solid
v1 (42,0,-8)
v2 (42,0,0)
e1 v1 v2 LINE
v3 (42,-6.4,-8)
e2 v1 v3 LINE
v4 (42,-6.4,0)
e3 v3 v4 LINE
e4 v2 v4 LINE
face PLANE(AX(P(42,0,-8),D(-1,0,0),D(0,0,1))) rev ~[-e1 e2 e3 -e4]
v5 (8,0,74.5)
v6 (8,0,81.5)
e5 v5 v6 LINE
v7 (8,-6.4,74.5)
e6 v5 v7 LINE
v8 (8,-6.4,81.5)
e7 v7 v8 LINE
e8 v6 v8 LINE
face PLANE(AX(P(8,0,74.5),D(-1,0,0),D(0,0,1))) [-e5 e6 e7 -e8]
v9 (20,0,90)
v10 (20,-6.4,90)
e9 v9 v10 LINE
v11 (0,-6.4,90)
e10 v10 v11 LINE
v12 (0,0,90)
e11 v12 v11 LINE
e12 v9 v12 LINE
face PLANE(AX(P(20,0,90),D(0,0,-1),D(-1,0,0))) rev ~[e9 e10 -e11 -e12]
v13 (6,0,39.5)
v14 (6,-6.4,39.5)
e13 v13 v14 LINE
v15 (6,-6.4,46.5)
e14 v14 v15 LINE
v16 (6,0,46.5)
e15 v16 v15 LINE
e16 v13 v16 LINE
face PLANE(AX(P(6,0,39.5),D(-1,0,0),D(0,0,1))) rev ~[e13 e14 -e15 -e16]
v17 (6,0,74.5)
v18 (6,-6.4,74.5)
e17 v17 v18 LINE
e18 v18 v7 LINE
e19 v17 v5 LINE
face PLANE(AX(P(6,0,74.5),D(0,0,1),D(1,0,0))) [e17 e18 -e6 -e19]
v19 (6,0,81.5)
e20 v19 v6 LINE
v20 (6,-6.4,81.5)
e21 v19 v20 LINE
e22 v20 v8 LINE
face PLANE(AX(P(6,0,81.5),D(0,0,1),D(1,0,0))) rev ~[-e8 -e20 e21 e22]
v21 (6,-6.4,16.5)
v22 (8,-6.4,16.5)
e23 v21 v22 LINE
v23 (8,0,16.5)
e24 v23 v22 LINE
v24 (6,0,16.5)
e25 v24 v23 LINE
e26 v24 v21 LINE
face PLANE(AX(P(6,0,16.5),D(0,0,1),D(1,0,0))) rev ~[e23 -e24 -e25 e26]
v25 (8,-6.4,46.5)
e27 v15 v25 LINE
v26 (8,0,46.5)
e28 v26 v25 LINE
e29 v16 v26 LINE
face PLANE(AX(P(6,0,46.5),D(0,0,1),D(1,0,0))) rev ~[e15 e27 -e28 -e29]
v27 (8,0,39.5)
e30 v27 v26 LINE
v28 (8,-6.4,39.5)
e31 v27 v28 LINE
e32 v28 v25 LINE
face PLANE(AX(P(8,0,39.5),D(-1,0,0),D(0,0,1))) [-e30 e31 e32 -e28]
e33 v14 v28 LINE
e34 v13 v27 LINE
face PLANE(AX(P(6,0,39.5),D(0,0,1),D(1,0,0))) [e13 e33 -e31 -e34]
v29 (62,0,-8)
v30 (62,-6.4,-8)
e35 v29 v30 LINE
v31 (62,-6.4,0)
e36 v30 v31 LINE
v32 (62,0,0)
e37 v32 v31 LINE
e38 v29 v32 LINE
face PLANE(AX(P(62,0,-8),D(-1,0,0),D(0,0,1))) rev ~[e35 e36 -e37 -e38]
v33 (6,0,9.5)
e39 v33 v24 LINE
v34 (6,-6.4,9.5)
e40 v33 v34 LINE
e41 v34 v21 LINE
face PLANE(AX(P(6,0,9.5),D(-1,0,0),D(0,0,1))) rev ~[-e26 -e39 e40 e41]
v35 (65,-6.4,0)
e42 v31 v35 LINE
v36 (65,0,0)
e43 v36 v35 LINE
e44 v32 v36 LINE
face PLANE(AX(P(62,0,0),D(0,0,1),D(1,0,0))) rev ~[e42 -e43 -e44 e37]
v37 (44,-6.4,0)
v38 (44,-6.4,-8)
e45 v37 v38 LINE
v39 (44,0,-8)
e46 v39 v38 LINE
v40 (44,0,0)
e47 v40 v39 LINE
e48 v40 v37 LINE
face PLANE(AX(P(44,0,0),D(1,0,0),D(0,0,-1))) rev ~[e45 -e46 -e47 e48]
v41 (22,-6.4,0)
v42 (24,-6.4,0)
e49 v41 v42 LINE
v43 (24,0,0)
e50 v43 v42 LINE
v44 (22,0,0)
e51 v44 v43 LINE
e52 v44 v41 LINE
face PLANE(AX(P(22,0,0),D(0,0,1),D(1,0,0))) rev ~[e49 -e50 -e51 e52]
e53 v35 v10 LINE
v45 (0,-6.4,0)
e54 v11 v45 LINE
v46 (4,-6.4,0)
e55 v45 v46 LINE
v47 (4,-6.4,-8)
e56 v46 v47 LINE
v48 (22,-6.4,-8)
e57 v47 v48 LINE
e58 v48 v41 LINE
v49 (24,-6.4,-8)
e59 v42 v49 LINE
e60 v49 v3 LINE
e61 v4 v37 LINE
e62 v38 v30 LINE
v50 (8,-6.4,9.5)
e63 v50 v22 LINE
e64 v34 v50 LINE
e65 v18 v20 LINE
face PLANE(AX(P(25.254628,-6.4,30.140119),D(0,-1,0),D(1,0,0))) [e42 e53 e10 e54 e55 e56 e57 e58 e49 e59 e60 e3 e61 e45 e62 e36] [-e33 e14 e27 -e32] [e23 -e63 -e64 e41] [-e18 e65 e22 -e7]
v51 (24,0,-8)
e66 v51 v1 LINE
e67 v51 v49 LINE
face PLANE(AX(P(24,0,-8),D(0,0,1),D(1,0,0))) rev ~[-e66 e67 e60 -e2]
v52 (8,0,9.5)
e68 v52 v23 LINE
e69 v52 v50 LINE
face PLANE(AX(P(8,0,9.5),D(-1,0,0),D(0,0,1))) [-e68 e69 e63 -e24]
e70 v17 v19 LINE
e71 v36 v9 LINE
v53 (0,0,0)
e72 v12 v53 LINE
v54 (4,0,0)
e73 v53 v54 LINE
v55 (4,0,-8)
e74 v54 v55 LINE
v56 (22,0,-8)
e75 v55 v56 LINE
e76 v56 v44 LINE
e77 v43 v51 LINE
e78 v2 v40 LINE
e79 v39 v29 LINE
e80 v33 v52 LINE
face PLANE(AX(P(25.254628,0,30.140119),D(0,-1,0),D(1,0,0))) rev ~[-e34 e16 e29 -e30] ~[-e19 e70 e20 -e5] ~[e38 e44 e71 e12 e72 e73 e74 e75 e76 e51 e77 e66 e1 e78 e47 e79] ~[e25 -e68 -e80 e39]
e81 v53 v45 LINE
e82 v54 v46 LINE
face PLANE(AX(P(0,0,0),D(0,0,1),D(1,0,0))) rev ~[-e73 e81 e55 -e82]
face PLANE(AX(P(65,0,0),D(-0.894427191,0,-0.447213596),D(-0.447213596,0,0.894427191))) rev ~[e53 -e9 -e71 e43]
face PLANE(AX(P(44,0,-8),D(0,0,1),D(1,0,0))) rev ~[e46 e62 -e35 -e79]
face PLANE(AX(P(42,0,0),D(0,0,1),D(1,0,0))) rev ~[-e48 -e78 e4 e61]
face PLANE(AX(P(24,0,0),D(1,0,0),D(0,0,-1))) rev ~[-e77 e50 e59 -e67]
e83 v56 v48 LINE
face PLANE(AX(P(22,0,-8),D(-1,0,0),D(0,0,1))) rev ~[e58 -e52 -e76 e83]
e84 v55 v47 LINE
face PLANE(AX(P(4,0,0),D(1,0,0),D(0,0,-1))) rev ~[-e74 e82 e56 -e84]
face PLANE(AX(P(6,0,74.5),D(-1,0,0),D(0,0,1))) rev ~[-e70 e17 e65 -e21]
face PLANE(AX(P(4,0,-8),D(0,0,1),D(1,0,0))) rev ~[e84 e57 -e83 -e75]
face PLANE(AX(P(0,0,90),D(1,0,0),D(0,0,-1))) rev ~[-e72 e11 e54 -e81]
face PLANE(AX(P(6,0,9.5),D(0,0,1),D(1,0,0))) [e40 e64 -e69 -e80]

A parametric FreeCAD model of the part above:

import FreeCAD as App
import Part
import Sketcher
from FreeCAD import Vector


def add_polygon(sketch, points):
    """Adds a closed chain of lines whose ends are joined by coincident constraints."""
    first, n = sketch.GeometryCount, len(points)
    for a, b in zip(points, points[1:] + points[:1]):
        sketch.addGeometry(Part.LineSegment(App.Vector(*a, 0), App.Vector(*b, 0)), False)
    for i in range(n):
        sketch.addConstraint(Sketcher.Constraint("Coincident", first + i, 2, first + (i + 1) % n, 1))

doc = App.newDocument("Part")
body = doc.addObject("PartDesign::Body", "Body")

# Sketch on XZ plane
sketch1 = body.newObject("Sketcher::SketchObject", "Sketch")
sketch1.AttachmentSupport = (doc.getObject("XZ_Plane"), [""])
sketch1.MapMode = "FlatFace"
add_polygon(sketch1, [(0, 90), (0, 0), (4, 0), (4, -8), (22, -8), (22, 0), (24, 0), (24, -8), (42, -8), (42, 0), (44, 0), (44, -8), (62, -8), (62, 0), (65, 0), (20, 90)])  # lines 0-15
add_polygon(sketch1, [(8, 9.5), (6, 9.5), (6, 16.5), (8, 16.5)])  # lines 16-19
add_polygon(sketch1, [(8, 39.5), (6, 39.5), (6, 46.5), (8, 46.5)])  # lines 20-23
add_polygon(sketch1, [(8, 74.5), (6, 74.5), (6, 81.5), (8, 81.5)])  # lines 24-27
sketch1.addConstraint([
    Sketcher.Constraint("Vertical", 0),
    Sketcher.Constraint("Horizontal", 1),
    Sketcher.Constraint("Vertical", 2),
    Sketcher.Constraint("Horizontal", 3),
    Sketcher.Constraint("Vertical", 4),
    Sketcher.Constraint("Horizontal", 5),
    Sketcher.Constraint("Vertical", 6),
    Sketcher.Constraint("Horizontal", 7),
    Sketcher.Constraint("Vertical", 8),
    Sketcher.Constraint("Horizontal", 9),
    Sketcher.Constraint("Vertical", 10),
    Sketcher.Constraint("Horizontal", 11),
    Sketcher.Constraint("Vertical", 12),
    Sketcher.Constraint("Horizontal", 13),
    Sketcher.Constraint("Horizontal", 15),
    Sketcher.Constraint("Horizontal", 16),
    Sketcher.Constraint("Vertical", 17),
    Sketcher.Constraint("Horizontal", 18),
    Sketcher.Constraint("Vertical", 19),
    Sketcher.Constraint("Horizontal", 20),
    Sketcher.Constraint("Vertical", 21),
    Sketcher.Constraint("Horizontal", 22),
    Sketcher.Constraint("Vertical", 23),
    Sketcher.Constraint("Horizontal", 24),
    Sketcher.Constraint("Vertical", 25),
    Sketcher.Constraint("Horizontal", 26),
    Sketcher.Constraint("Vertical", 27),
    Sketcher.Constraint("Coincident", 0, 2, -1, 1),
    Sketcher.Constraint("PointOnObject", 4, 2, -1),
    Sketcher.Constraint("PointOnObject", 8, 2, -1),
    Sketcher.Constraint("PointOnObject", 12, 2, -1),
    Sketcher.Constraint("Horizontal", 3, 2, 6, 2),
    Sketcher.Constraint("Horizontal", 7, 2, 10, 2),
    Sketcher.Constraint("Vertical", 17, 2, 20, 2),
    Sketcher.Constraint("Vertical", 19, 2, 22, 2),
    Sketcher.Constraint("Vertical", 21, 2, 24, 2),
    Sketcher.Constraint("Vertical", 23, 2, 26, 2),
    Sketcher.Constraint("Equal", 3, 7),
    Sketcher.Constraint("Equal", 5, 9),
    Sketcher.Constraint("Equal", 7, 11),
    Sketcher.Constraint("Equal", 9, 16),
    Sketcher.Constraint("Equal", 19, 21),
    Sketcher.Constraint("Equal", 23, 25),
    Sketcher.Constraint("DistanceX", 1, 1, 1, 2, 4.0),
    Sketcher.Constraint("DistanceX", 3, 1, 3, 2, 18.0),
    Sketcher.Constraint("DistanceX", 5, 1, 5, 2, 2.0),
    Sketcher.Constraint("DistanceX", 13, 1, 13, 2, 3.0),
    Sketcher.Constraint("DistanceX", 15, 2, 15, 1, 20.0),
    Sketcher.Constraint("DistanceY", 0, 2, 0, 1, 90.0),
    Sketcher.Constraint("DistanceY", 2, 2, 2, 1, 8.0),
    Sketcher.Constraint("DistanceY", 17, 1, 17, 2, 7.0),
    Sketcher.Constraint("DistanceX", -1, 1, 16, 2, 6.0),
    Sketcher.Constraint("DistanceY", 17, 2, 20, 2, 23.0),
    Sketcher.Constraint("DistanceY", 21, 2, 24, 2, 28.0),
    Sketcher.Constraint("DistanceY", -1, 1, 16, 2, 9.5),
])
pad1 = body.newObject("PartDesign::Pad", "Pad")
pad1.Profile = sketch1
pad1.Length = 6.4

doc.recompute()
